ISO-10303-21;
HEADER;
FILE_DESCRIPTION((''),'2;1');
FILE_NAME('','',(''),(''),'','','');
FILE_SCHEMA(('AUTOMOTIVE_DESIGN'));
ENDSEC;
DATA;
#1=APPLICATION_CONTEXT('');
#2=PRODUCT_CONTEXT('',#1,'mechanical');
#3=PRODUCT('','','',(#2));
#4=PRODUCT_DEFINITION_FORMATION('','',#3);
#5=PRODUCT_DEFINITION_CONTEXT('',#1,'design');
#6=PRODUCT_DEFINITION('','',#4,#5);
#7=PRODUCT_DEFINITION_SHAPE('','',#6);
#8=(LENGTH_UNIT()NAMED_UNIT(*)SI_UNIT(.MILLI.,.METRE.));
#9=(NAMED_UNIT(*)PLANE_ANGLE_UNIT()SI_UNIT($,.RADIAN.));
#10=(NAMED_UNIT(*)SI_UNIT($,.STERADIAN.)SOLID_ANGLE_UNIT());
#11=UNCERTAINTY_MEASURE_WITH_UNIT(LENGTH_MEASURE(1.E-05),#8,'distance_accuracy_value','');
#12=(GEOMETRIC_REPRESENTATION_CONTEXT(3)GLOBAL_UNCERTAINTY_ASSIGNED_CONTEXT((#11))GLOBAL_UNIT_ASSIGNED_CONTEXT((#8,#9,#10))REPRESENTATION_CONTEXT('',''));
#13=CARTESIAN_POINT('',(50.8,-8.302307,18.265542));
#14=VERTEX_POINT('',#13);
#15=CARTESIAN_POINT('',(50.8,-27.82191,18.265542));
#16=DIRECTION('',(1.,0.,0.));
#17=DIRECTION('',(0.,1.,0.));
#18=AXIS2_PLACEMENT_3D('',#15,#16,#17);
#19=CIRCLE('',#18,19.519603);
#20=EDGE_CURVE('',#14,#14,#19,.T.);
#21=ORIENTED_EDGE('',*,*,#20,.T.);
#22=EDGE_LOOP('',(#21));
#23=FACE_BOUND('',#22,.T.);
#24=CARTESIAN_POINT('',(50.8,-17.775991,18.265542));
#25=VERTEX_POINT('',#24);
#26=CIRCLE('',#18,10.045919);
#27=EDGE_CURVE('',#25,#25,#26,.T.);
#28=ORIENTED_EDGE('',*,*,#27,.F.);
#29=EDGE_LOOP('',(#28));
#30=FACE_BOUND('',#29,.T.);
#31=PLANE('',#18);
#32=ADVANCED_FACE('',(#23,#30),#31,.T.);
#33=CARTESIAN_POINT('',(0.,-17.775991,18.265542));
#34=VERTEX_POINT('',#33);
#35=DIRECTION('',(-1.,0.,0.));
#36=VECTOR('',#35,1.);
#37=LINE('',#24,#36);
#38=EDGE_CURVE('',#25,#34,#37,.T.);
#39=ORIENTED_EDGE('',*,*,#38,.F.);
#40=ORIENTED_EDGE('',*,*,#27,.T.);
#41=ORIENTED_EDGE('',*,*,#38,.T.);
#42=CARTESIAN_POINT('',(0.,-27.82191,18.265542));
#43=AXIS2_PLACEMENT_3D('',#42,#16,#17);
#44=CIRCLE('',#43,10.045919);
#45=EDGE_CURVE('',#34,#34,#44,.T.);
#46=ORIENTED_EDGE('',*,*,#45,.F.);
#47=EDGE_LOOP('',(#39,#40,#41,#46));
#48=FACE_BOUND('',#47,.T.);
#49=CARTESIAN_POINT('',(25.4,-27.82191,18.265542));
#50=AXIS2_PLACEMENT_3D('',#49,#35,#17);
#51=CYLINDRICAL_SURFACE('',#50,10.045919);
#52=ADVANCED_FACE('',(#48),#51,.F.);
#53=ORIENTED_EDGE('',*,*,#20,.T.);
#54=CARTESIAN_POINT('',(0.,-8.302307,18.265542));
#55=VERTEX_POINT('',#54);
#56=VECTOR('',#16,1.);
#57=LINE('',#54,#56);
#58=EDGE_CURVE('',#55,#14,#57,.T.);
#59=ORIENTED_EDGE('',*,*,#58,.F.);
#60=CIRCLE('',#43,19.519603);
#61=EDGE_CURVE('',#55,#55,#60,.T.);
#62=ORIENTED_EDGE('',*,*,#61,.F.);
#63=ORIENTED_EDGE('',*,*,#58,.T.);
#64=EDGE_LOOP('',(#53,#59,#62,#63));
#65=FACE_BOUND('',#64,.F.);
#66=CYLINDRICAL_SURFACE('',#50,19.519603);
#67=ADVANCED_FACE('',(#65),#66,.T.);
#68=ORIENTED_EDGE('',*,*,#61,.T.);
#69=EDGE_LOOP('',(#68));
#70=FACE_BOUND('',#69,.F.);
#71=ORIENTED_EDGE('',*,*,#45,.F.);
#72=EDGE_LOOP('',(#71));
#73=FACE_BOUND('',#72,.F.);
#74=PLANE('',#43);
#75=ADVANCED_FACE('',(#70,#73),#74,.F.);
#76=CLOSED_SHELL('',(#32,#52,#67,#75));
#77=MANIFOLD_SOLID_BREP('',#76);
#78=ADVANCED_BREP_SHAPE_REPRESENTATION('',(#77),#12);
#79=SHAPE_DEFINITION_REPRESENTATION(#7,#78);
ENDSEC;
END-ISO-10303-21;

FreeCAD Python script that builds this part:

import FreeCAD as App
import Part
import Sketcher

V = App.Vector
Q = App.Units.Quantity

doc = App.newDocument("Part")
params = doc.addObject("Spreadsheet::Sheet", "Params")
for row, (alias, value) in enumerate([
    ("pad1_length", "1 in"),
    ("pad2_length", "1 in"),
], start=1):
    params.set(f"A{row}", alias)
    params.set(f"B{row}", "=" + value)
    params.setAlias(f"B{row}", alias)

body = doc.addObject("PartDesign::Body", "Body")

sketch1 = body.newObject("Sketcher::SketchObject", "Sketch")
sketch1.AttachmentSupport = (doc.getObject("YZ_Plane"), [""])
sketch1.MapMode = "FlatFace"
sketch1.addGeometry([
    Part.Circle(V(-27.82191, 18.265542, 0), V(0, 0, 1), 19.519603),
    Part.Circle(V(-27.82191, 18.265542, 0), V(0, 0, 1), 10.045919),
], False)
sketch1.addConstraint([
    Sketcher.Constraint("Coincident", 1, 3, 0, 3),
    Sketcher.Constraint("Diameter", 0, Q("39.039206 mm")),
    Sketcher.Constraint("Diameter", 1, Q("20.091838 mm")),
    Sketcher.Constraint("DistanceX", 0, 3, -1, 1, Q("27.82191 mm")),
    Sketcher.Constraint("DistanceY", -1, 1, 0, 3, Q("18.265542 mm")),
])
pad1 = body.newObject("PartDesign::Pad", "Pad")
pad1.Profile = sketch1
pad1.setExpression("Length", "Params.pad1_length")

sketch2 = body.newObject("Sketcher::SketchObject", "Sketch001")
sketch2.AttachmentSupport = (doc.getObject("YZ_Plane"), [""])
sketch2.MapMode = "FlatFace"
sketch2.AttachmentOffset = App.Placement(V(0, 0, 1 * 25.4), App.Rotation())
sketch2.addGeometry([
    Part.Circle(V(-27.82191, 18.265542, 0), V(0, 0, 1), 19.519603),
    Part.Circle(V(-27.82191, 18.265542, 0), V(0, 0, 1), 10.045919),
], False)
sketch2.addConstraint([
    Sketcher.Constraint("Coincident", 1, 3, 0, 3),
    Sketcher.Constraint("Diameter", 0, Q("39.039206 mm")),
    Sketcher.Constraint("Diameter", 1, Q("20.091838 mm")),
    Sketcher.Constraint("DistanceX", 0, 3, -1, 1, Q("27.82191 mm")),
    Sketcher.Constraint("DistanceY", -1, 1, 0, 3, Q("18.265542 mm")),
])
pad2 = body.newObject("PartDesign::Pad", "Pad001")
pad2.Profile = sketch2
pad2.setExpression("Length", "Params.pad2_length")

doc.recompute()
